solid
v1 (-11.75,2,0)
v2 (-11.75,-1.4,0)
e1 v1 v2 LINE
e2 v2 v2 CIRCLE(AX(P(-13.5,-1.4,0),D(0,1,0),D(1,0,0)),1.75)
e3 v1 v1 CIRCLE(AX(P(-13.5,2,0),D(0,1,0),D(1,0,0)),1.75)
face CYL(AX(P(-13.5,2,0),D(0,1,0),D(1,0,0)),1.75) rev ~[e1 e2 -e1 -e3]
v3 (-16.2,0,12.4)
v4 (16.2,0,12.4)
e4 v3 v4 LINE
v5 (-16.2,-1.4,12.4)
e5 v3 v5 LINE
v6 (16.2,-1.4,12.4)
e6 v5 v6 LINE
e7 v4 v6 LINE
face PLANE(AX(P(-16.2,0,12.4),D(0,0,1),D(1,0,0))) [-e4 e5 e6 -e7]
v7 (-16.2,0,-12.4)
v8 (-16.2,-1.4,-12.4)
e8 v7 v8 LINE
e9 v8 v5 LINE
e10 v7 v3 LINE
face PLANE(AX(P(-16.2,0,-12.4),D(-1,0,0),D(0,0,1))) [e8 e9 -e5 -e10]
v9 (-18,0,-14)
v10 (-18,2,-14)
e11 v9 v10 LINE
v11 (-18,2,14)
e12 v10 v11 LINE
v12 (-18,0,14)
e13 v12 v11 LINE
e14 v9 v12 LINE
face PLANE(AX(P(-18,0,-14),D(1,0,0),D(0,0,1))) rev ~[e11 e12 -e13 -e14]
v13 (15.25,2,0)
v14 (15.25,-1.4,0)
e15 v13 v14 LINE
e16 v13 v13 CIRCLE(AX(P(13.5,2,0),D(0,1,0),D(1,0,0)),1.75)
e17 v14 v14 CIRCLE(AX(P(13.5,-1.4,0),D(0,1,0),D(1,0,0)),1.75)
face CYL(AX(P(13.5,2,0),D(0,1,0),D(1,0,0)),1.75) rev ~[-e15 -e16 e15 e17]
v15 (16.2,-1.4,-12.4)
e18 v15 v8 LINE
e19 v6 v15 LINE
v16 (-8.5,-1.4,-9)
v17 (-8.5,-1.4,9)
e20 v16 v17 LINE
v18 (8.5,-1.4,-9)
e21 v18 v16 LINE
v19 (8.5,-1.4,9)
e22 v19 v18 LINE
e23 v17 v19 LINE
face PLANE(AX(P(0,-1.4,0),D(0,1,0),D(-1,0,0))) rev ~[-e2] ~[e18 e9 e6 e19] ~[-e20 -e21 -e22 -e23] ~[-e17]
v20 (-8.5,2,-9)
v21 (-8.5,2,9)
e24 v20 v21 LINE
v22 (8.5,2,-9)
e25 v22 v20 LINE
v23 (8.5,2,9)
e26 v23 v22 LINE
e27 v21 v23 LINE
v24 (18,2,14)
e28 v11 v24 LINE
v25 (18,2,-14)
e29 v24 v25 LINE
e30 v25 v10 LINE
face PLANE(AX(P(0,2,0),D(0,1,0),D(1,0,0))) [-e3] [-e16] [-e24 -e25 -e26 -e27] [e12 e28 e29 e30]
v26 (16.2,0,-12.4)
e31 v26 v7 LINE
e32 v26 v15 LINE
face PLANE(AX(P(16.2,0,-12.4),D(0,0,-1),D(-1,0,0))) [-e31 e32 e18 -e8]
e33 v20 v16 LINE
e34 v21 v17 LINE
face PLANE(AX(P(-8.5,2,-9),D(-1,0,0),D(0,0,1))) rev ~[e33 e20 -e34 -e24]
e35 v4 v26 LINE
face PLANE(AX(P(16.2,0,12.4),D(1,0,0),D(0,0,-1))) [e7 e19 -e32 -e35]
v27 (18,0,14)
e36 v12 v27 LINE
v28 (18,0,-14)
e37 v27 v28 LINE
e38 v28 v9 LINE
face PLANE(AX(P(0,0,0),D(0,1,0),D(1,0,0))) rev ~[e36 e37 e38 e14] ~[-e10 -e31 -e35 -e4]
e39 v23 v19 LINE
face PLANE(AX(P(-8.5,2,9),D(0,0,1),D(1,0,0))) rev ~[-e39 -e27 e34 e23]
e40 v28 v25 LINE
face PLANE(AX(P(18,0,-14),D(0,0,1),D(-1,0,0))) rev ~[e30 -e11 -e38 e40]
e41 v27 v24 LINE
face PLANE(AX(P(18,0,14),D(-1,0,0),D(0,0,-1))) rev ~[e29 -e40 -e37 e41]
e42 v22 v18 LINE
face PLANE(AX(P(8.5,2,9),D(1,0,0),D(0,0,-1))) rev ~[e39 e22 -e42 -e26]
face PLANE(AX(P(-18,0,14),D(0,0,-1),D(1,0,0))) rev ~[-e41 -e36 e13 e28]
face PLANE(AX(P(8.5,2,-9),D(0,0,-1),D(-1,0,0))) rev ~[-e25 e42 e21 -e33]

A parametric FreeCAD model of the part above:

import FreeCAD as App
import Part
import Sketcher

V = App.Vector

doc = App.newDocument("Part")
body = doc.addObject("PartDesign::Body", "Body")

# Sketch on XZ plane
sketch1 = doc.addObject("Sketcher::SketchObject", "Sketch")
body.addObject(sketch1)
sketch1.AttachmentSupport = (doc.XZ_Plane, [""])
sketch1.MapMode = "FlatFace"
sketch1.addGeometry([
    Part.LineSegment(V(-16, -12, 0), V(-16, 12, 0)),
    Part.LineSegment(V(-16, 12, 0), V(16, 12, 0)),
    Part.LineSegment(V(16, 12, 0), V(16, -12, 0)),
    Part.LineSegment(V(16, -12, 0), V(-16, -12, 0)),
], False)
sketch1.addConstraint([
    Sketcher.Constraint("Coincident", 0, 2, 1, 1),
    Sketcher.Constraint("Coincident", 1, 2, 2, 1),
    Sketcher.Constraint("Coincident", 2, 2, 3, 1),
    Sketcher.Constraint("Coincident", 3, 2, 0, 1),
    Sketcher.Constraint("Vertical", 0),
    Sketcher.Constraint("Horizontal", 1),
    Sketcher.Constraint("Vertical", 2),
    Sketcher.Constraint("Horizontal", 3),
    Sketcher.Constraint("Symmetric", 0, 2, 2, 2, -1, 1),
    Sketcher.Constraint("DistanceX", 1, 1, 1, 2, 32.4),
    Sketcher.Constraint("DistanceY", 0, 1, 0, 2, 24.8),
])
pad1 = doc.addObject("PartDesign::Pad", "Pad")
body.addObject(pad1)
pad1.Profile = sketch1
pad1.Length = 1.4

# Sketch on XZ plane
sketch2 = doc.addObject("Sketcher::SketchObject", "Sketch001")
body.addObject(sketch2)
sketch2.AttachmentSupport = (doc.XZ_Plane, [""])
sketch2.MapMode = "FlatFace"
sketch2.addGeometry([
    Part.LineSegment(V(-18, -14, 0), V(-18, 14, 0)),
    Part.LineSegment(V(-18, 14, 0), V(18, 14, 0)),
    Part.LineSegment(V(18, 14, 0), V(18, -14, 0)),
    Part.LineSegment(V(18, -14, 0), V(-18, -14, 0)),
], False)
sketch2.addConstraint([
    Sketcher.Constraint("Coincident", 0, 2, 1, 1),
    Sketcher.Constraint("Coincident", 1, 2, 2, 1),
    Sketcher.Constraint("Coincident", 2, 2, 3, 1),
    Sketcher.Constraint("Coincident", 3, 2, 0, 1),
    Sketcher.Constraint("Vertical", 0),
    Sketcher.Constraint("Horizontal", 1),
    Sketcher.Constraint("Vertical", 2),
    Sketcher.Constraint("Horizontal", 3),
    Sketcher.Constraint("Symmetric", 0, 2, 2, 2, -1, 1),
    Sketcher.Constraint("DistanceX", 1, 1, 1, 2, 36.0),
    Sketcher.Constraint("DistanceY", 0, 1, 0, 2, 28.0),
])
pad2 = doc.addObject("PartDesign::Pad", "Pad001")
body.addObject(pad2)
pad2.Profile = sketch2
pad2.Length = 2
pad2.Reversed = True

# Sketch on XZ plane
sketch3 = doc.addObject("Sketcher::SketchObject", "Sketch002")
body.addObject(sketch3)
sketch3.AttachmentSupport = (doc.XZ_Plane, [""])
sketch3.MapMode = "FlatFace"
sketch3.AttachmentOffset = App.Placement(V(0, 0, -2), App.Rotation())
sketch3.addGeometry([
    Part.LineSegment(V(-8.5, -9, 0), V(-8.5, 9, 0)),  # 0
    Part.LineSegment(V(-8.5, 9, 0), V(8.5, 9, 0)),  # 1
    Part.LineSegment(V(8.5, 9, 0), V(8.5, -9, 0)),  # 2
    Part.LineSegment(V(8.5, -9, 0), V(-8.5, -9, 0)),  # 3
    Part.Circle(V(-13.5, 0, 0), V(0, 0, 1), 1.8),  # 4
    Part.Circle(V(13.5, 0, 0), V(0, 0, 1), 1.8),  # 5
], False)
sketch3.addConstraint([
    Sketcher.Constraint("Coincident", 0, 2, 1, 1),
    Sketcher.Constraint("Coincident", 1, 2, 2, 1),
    Sketcher.Constraint("Coincident", 2, 2, 3, 1),
    Sketcher.Constraint("Coincident", 3, 2, 0, 1),
    Sketcher.Constraint("Vertical", 0),
    Sketcher.Constraint("Horizontal", 1),
    Sketcher.Constraint("Vertical", 2),
    Sketcher.Constraint("Horizontal", 3),
    Sketcher.Constraint("Equal", 4, 5),
    Sketcher.Constraint("Symmetric", 4, 3, 5, 3, -1, 1),
    Sketcher.Constraint("Symmetric", 0, 2, 2, 2, -1, 1),
    Sketcher.Constraint("PointOnObject", 4, 3, -1),
    Sketcher.Constraint("Diameter", 4, 3.5),
    Sketcher.Constraint("DistanceX", 1, 1, 1, 2, 17.0),
    Sketcher.Constraint("DistanceY", 0, 1, 0, 2, 18.0),
    Sketcher.Constraint("DistanceX", 4, 3, -1, 1, 13.5),
])
pocket1 = doc.addObject("PartDesign::Pocket", "Pocket")
body.addObject(pocket1)
pocket1.Profile = sketch3
pocket1.Length = 3.4
pocket1.Reversed = True

doc.recompute()
